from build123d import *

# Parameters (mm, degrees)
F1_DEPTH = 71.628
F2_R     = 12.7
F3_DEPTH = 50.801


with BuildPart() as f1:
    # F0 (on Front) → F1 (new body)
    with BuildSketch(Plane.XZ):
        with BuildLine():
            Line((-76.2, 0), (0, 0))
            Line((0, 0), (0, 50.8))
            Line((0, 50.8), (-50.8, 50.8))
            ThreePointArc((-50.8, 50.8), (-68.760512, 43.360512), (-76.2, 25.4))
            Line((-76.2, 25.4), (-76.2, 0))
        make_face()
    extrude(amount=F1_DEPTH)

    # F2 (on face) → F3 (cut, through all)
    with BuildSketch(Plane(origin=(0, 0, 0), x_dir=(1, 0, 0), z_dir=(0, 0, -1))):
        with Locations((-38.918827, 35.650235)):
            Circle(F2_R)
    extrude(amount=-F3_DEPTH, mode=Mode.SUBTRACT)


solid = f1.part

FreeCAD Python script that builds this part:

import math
import FreeCAD as App
import Part
import Sketcher

V = App.Vector
Q = App.Units.Quantity

doc = App.newDocument("Part")
body = doc.addObject("PartDesign::Body", "Body")

# Sketch on XZ plane
sketch1 = body.newObject("Sketcher::SketchObject", "Sketch")
sketch1.AttachmentSupport = (doc.getObject("XZ_Plane"), [""])
sketch1.MapMode = "FlatFace"
sketch1.addGeometry([
    Part.LineSegment(V(-76, 0, 0), V(0, 0, 0)),  # 0
    Part.LineSegment(V(0, 0, 0), V(0, 51, 0)),  # 1
    Part.LineSegment(V(0, 51, 0), V(-51, 51, 0)),  # 2
    Part.ArcOfCircle(Part.Circle(V(-51, 25, 0), V(0, 0, 1), 25), math.radians(90), math.radians(180)),  # 3
    Part.LineSegment(V(-76, 25, 0), V(-76, 0, 0)),  # 4
], False)
sketch1.addConstraint([
    Sketcher.Constraint("Coincident", 0, 2, 1, 1),
    Sketcher.Constraint("Coincident", 1, 2, 2, 1),
    Sketcher.Constraint("Tangent", 2, 2, 3, 1),
    Sketcher.Constraint("Tangent", 3, 2, 4, 1),
    Sketcher.Constraint("Coincident", 4, 2, 0, 1),
    Sketcher.Constraint("Horizontal", 0),
    Sketcher.Constraint("Vertical", 1),
    Sketcher.Constraint("Horizontal", 2),
    Sketcher.Constraint("Vertical", 4),
    Sketcher.Constraint("Coincident", 0, 2, -1, 1),
    Sketcher.Constraint("Equal", 2, 1),
    Sketcher.Constraint("Radius", 3, Q("1 in")),
    Sketcher.Constraint("DistanceX", 0, 1, 0, 2, Q("3 in")),
])
pad1 = body.newObject("PartDesign::Pad", "Pad")
pad1.Profile = sketch1
pad1.Length = Q("2.82 in")

# Sketch on XY plane
sketch2 = body.newObject("Sketcher::SketchObject", "Sketch001")
sketch2.AttachmentSupport = (doc.getObject("XY_Plane"), [""])
sketch2.MapMode = "FlatFace"
sketch2.addGeometry(Part.Circle(V(-39, -36, 0), V(0, 0, 1), 13), False)
sketch2.addConstraint([
    Sketcher.Constraint("Diameter", 0, Q("1 in")),
    Sketcher.Constraint("DistanceX", 0, 3, -1, 1, Q("38.918827 mm")),
    Sketcher.Constraint("DistanceY", 0, 3, -1, 1, Q("35.650235 mm")),
])
pocket1 = body.newObject("PartDesign::Pocket", "Pocket")
pocket1.Profile = sketch2
pocket1.Type = "ThroughAll"
pocket1.Reversed = True

doc.recompute()
